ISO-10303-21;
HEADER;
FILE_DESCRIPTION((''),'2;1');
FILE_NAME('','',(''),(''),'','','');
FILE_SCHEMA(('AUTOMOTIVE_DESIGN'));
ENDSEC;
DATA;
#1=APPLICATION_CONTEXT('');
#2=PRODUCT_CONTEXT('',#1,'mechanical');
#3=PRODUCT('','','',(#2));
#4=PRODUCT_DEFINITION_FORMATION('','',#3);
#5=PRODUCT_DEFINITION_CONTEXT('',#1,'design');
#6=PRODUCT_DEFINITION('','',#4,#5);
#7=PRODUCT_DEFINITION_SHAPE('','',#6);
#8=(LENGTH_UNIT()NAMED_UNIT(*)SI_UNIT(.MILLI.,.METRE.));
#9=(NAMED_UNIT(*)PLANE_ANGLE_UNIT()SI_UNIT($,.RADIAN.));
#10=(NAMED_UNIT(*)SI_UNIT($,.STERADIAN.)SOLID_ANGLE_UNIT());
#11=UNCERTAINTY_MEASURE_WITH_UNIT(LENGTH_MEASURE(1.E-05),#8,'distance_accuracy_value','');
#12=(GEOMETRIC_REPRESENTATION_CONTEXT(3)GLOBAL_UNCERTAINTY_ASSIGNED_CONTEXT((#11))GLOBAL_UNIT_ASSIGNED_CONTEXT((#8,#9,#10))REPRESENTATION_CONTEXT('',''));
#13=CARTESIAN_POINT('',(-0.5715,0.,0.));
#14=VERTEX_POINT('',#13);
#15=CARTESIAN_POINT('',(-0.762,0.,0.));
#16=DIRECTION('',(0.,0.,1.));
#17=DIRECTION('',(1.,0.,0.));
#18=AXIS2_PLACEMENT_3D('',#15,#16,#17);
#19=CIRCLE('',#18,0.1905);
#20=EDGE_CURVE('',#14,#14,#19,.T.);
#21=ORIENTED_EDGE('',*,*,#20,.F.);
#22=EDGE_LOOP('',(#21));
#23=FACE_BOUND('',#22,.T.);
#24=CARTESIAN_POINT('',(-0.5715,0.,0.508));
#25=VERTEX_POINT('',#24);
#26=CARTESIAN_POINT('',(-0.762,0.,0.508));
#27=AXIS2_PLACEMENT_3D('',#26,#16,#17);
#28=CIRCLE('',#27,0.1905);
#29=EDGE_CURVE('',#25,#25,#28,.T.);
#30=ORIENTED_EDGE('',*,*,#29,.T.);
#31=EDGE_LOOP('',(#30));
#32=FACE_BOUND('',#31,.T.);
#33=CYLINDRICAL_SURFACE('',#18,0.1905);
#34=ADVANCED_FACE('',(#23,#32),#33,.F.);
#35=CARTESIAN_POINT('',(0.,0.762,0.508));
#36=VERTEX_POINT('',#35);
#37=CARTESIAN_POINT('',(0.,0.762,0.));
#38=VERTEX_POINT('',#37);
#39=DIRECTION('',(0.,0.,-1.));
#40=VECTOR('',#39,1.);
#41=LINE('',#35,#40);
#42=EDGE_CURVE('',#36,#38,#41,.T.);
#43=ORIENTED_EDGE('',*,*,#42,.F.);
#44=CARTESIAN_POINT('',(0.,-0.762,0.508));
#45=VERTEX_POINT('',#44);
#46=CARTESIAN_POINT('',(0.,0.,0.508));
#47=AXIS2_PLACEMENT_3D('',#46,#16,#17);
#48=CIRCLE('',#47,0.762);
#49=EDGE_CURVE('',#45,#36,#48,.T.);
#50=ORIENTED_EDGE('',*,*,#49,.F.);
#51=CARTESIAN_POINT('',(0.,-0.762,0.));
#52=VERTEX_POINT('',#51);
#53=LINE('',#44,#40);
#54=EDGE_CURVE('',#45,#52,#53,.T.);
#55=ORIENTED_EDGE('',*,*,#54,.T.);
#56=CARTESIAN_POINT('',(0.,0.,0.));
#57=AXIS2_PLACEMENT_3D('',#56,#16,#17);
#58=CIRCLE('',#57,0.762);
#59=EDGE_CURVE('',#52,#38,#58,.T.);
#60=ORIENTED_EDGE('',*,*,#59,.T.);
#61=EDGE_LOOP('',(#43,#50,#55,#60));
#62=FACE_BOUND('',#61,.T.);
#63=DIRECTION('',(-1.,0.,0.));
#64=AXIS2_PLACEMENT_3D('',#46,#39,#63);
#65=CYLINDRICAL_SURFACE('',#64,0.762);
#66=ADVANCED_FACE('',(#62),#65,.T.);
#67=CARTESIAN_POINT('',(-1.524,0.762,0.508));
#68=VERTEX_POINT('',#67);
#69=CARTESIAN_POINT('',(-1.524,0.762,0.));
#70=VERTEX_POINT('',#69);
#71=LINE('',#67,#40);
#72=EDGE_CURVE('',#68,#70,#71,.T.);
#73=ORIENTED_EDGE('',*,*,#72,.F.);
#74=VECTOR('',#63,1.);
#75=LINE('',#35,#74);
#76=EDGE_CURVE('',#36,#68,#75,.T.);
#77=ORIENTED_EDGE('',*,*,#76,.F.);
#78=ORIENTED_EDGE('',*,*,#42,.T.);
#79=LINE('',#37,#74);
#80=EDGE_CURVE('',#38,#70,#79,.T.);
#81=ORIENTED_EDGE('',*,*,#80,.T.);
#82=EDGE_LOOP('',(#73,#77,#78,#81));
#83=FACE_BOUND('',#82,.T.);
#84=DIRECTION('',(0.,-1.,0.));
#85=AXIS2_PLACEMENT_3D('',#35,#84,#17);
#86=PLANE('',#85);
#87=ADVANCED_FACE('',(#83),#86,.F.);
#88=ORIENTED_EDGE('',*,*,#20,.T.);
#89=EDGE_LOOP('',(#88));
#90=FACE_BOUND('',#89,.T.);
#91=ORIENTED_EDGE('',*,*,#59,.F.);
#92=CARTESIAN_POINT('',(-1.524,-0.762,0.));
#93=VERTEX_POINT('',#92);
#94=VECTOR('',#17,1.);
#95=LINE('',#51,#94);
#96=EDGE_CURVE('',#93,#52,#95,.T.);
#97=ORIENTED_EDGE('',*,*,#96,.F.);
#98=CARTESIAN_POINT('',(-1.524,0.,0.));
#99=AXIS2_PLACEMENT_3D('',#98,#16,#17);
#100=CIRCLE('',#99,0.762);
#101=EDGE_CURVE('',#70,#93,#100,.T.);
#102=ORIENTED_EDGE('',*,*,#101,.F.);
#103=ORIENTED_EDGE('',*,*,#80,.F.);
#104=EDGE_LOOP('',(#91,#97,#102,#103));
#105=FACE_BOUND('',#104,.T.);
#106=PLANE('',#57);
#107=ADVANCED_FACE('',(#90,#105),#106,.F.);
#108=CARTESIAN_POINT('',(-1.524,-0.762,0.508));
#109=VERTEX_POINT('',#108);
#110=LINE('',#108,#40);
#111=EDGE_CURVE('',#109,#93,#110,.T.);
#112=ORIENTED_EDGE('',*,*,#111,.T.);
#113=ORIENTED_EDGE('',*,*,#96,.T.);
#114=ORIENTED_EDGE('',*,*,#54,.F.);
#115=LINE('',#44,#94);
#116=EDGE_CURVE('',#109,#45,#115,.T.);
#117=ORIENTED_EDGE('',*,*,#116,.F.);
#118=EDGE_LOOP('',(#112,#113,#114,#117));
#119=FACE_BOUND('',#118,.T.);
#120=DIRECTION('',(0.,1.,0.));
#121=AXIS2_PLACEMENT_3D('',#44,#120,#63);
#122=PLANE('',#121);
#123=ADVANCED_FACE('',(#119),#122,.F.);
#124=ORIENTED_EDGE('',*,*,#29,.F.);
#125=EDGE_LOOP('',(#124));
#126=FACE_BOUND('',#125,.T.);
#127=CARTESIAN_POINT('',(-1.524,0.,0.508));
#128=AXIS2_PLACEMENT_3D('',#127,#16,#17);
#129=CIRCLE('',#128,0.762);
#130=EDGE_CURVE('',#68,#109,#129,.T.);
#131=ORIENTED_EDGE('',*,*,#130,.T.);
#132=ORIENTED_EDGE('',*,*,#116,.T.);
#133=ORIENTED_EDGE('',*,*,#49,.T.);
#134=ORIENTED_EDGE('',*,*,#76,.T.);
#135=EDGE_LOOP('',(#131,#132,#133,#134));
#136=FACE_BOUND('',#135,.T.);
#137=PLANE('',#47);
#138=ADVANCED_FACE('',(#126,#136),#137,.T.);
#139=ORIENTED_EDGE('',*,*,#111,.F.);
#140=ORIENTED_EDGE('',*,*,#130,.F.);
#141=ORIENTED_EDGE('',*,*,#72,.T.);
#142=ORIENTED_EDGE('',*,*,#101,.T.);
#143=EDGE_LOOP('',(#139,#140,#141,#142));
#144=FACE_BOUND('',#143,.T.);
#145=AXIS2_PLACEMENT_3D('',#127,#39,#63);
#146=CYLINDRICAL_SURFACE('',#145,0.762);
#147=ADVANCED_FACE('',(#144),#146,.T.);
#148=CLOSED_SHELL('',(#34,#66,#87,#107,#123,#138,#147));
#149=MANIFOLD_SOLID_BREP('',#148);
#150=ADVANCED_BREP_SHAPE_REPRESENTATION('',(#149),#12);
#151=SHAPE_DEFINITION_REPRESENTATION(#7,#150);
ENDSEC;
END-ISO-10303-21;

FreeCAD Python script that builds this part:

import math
import FreeCAD as App
import Part
import Sketcher
from FreeCAD import Vector
Q = App.Units.Quantity

doc = App.newDocument("Part")
body = doc.addObject("PartDesign::Body", "Body")

sketch1 = doc.addObject("Sketcher::SketchObject", "Sketch")
body.addObject(sketch1)
sketch1.AttachmentSupport = (doc.XY_Plane, [""])
sketch1.MapMode = "FlatFace"
sketch1.addGeometry([
    Part.LineSegment(Vector(-1.5, -0.8, 0), Vector(0, -0.8, 0)),
    Part.ArcOfCircle(Part.Circle(Vector(0, 0, 0), Vector(0, 0, 1), 0.8), math.radians(-90), math.radians(90)),
    Part.LineSegment(Vector(0, 0.8, 0), Vector(-1.5, 0.8, 0)),
    Part.ArcOfCircle(Part.Circle(Vector(-1.5, 0, 0), Vector(0, 0, 1), 0.8), math.radians(90), math.radians(270)),
], False)
sketch1.addConstraint([
    Sketcher.Constraint("Tangent", 0, 2, 1, 1),
    Sketcher.Constraint("Tangent", 1, 2, 2, 1),
    Sketcher.Constraint("Tangent", 2, 2, 3, 1),
    Sketcher.Constraint("Tangent", 3, 2, 0, 1),
    Sketcher.Constraint("Horizontal", 0),
    Sketcher.Constraint("Horizontal", 2),
    Sketcher.Constraint("Coincident", 1, 3, -1, 1),
    Sketcher.Constraint("Radius", 1, Q("0.03 in")),
    Sketcher.Constraint("DistanceX", 0, 1, 0, 2, Q("0.06 in")),
])
pad1 = doc.addObject("PartDesign::Pad", "Pad")
body.addObject(pad1)
pad1.Profile = sketch1
pad1.Length = Q("0.02 in")

sketch2 = doc.addObject("Sketcher::SketchObject", "Sketch001")
body.addObject(sketch2)
sketch2.AttachmentSupport = (doc.XY_Plane, [""])
sketch2.MapMode = "FlatFace"
sketch2.AttachmentOffset = App.Placement(Vector(0, 0, 0.02 * 25.4), App.Rotation())
sketch2.addGeometry(Part.Circle(Vector(-0.76, 0, 0), Vector(0, 0, 1), 0.19), False)
sketch2.addConstraint([
    Sketcher.Constraint("PointOnObject", 0, 3, -1),
    Sketcher.Constraint("Diameter", 0, Q("0.015 in")),
    Sketcher.Constraint("DistanceX", 0, 3, -1, 1, Q("0.03 in")),
])
pocket1 = doc.addObject("PartDesign::Pocket", "Pocket")
body.addObject(pocket1)
pocket1.Profile = sketch2
pocket1.Length = Q("0.02 in")

doc.recompute()
